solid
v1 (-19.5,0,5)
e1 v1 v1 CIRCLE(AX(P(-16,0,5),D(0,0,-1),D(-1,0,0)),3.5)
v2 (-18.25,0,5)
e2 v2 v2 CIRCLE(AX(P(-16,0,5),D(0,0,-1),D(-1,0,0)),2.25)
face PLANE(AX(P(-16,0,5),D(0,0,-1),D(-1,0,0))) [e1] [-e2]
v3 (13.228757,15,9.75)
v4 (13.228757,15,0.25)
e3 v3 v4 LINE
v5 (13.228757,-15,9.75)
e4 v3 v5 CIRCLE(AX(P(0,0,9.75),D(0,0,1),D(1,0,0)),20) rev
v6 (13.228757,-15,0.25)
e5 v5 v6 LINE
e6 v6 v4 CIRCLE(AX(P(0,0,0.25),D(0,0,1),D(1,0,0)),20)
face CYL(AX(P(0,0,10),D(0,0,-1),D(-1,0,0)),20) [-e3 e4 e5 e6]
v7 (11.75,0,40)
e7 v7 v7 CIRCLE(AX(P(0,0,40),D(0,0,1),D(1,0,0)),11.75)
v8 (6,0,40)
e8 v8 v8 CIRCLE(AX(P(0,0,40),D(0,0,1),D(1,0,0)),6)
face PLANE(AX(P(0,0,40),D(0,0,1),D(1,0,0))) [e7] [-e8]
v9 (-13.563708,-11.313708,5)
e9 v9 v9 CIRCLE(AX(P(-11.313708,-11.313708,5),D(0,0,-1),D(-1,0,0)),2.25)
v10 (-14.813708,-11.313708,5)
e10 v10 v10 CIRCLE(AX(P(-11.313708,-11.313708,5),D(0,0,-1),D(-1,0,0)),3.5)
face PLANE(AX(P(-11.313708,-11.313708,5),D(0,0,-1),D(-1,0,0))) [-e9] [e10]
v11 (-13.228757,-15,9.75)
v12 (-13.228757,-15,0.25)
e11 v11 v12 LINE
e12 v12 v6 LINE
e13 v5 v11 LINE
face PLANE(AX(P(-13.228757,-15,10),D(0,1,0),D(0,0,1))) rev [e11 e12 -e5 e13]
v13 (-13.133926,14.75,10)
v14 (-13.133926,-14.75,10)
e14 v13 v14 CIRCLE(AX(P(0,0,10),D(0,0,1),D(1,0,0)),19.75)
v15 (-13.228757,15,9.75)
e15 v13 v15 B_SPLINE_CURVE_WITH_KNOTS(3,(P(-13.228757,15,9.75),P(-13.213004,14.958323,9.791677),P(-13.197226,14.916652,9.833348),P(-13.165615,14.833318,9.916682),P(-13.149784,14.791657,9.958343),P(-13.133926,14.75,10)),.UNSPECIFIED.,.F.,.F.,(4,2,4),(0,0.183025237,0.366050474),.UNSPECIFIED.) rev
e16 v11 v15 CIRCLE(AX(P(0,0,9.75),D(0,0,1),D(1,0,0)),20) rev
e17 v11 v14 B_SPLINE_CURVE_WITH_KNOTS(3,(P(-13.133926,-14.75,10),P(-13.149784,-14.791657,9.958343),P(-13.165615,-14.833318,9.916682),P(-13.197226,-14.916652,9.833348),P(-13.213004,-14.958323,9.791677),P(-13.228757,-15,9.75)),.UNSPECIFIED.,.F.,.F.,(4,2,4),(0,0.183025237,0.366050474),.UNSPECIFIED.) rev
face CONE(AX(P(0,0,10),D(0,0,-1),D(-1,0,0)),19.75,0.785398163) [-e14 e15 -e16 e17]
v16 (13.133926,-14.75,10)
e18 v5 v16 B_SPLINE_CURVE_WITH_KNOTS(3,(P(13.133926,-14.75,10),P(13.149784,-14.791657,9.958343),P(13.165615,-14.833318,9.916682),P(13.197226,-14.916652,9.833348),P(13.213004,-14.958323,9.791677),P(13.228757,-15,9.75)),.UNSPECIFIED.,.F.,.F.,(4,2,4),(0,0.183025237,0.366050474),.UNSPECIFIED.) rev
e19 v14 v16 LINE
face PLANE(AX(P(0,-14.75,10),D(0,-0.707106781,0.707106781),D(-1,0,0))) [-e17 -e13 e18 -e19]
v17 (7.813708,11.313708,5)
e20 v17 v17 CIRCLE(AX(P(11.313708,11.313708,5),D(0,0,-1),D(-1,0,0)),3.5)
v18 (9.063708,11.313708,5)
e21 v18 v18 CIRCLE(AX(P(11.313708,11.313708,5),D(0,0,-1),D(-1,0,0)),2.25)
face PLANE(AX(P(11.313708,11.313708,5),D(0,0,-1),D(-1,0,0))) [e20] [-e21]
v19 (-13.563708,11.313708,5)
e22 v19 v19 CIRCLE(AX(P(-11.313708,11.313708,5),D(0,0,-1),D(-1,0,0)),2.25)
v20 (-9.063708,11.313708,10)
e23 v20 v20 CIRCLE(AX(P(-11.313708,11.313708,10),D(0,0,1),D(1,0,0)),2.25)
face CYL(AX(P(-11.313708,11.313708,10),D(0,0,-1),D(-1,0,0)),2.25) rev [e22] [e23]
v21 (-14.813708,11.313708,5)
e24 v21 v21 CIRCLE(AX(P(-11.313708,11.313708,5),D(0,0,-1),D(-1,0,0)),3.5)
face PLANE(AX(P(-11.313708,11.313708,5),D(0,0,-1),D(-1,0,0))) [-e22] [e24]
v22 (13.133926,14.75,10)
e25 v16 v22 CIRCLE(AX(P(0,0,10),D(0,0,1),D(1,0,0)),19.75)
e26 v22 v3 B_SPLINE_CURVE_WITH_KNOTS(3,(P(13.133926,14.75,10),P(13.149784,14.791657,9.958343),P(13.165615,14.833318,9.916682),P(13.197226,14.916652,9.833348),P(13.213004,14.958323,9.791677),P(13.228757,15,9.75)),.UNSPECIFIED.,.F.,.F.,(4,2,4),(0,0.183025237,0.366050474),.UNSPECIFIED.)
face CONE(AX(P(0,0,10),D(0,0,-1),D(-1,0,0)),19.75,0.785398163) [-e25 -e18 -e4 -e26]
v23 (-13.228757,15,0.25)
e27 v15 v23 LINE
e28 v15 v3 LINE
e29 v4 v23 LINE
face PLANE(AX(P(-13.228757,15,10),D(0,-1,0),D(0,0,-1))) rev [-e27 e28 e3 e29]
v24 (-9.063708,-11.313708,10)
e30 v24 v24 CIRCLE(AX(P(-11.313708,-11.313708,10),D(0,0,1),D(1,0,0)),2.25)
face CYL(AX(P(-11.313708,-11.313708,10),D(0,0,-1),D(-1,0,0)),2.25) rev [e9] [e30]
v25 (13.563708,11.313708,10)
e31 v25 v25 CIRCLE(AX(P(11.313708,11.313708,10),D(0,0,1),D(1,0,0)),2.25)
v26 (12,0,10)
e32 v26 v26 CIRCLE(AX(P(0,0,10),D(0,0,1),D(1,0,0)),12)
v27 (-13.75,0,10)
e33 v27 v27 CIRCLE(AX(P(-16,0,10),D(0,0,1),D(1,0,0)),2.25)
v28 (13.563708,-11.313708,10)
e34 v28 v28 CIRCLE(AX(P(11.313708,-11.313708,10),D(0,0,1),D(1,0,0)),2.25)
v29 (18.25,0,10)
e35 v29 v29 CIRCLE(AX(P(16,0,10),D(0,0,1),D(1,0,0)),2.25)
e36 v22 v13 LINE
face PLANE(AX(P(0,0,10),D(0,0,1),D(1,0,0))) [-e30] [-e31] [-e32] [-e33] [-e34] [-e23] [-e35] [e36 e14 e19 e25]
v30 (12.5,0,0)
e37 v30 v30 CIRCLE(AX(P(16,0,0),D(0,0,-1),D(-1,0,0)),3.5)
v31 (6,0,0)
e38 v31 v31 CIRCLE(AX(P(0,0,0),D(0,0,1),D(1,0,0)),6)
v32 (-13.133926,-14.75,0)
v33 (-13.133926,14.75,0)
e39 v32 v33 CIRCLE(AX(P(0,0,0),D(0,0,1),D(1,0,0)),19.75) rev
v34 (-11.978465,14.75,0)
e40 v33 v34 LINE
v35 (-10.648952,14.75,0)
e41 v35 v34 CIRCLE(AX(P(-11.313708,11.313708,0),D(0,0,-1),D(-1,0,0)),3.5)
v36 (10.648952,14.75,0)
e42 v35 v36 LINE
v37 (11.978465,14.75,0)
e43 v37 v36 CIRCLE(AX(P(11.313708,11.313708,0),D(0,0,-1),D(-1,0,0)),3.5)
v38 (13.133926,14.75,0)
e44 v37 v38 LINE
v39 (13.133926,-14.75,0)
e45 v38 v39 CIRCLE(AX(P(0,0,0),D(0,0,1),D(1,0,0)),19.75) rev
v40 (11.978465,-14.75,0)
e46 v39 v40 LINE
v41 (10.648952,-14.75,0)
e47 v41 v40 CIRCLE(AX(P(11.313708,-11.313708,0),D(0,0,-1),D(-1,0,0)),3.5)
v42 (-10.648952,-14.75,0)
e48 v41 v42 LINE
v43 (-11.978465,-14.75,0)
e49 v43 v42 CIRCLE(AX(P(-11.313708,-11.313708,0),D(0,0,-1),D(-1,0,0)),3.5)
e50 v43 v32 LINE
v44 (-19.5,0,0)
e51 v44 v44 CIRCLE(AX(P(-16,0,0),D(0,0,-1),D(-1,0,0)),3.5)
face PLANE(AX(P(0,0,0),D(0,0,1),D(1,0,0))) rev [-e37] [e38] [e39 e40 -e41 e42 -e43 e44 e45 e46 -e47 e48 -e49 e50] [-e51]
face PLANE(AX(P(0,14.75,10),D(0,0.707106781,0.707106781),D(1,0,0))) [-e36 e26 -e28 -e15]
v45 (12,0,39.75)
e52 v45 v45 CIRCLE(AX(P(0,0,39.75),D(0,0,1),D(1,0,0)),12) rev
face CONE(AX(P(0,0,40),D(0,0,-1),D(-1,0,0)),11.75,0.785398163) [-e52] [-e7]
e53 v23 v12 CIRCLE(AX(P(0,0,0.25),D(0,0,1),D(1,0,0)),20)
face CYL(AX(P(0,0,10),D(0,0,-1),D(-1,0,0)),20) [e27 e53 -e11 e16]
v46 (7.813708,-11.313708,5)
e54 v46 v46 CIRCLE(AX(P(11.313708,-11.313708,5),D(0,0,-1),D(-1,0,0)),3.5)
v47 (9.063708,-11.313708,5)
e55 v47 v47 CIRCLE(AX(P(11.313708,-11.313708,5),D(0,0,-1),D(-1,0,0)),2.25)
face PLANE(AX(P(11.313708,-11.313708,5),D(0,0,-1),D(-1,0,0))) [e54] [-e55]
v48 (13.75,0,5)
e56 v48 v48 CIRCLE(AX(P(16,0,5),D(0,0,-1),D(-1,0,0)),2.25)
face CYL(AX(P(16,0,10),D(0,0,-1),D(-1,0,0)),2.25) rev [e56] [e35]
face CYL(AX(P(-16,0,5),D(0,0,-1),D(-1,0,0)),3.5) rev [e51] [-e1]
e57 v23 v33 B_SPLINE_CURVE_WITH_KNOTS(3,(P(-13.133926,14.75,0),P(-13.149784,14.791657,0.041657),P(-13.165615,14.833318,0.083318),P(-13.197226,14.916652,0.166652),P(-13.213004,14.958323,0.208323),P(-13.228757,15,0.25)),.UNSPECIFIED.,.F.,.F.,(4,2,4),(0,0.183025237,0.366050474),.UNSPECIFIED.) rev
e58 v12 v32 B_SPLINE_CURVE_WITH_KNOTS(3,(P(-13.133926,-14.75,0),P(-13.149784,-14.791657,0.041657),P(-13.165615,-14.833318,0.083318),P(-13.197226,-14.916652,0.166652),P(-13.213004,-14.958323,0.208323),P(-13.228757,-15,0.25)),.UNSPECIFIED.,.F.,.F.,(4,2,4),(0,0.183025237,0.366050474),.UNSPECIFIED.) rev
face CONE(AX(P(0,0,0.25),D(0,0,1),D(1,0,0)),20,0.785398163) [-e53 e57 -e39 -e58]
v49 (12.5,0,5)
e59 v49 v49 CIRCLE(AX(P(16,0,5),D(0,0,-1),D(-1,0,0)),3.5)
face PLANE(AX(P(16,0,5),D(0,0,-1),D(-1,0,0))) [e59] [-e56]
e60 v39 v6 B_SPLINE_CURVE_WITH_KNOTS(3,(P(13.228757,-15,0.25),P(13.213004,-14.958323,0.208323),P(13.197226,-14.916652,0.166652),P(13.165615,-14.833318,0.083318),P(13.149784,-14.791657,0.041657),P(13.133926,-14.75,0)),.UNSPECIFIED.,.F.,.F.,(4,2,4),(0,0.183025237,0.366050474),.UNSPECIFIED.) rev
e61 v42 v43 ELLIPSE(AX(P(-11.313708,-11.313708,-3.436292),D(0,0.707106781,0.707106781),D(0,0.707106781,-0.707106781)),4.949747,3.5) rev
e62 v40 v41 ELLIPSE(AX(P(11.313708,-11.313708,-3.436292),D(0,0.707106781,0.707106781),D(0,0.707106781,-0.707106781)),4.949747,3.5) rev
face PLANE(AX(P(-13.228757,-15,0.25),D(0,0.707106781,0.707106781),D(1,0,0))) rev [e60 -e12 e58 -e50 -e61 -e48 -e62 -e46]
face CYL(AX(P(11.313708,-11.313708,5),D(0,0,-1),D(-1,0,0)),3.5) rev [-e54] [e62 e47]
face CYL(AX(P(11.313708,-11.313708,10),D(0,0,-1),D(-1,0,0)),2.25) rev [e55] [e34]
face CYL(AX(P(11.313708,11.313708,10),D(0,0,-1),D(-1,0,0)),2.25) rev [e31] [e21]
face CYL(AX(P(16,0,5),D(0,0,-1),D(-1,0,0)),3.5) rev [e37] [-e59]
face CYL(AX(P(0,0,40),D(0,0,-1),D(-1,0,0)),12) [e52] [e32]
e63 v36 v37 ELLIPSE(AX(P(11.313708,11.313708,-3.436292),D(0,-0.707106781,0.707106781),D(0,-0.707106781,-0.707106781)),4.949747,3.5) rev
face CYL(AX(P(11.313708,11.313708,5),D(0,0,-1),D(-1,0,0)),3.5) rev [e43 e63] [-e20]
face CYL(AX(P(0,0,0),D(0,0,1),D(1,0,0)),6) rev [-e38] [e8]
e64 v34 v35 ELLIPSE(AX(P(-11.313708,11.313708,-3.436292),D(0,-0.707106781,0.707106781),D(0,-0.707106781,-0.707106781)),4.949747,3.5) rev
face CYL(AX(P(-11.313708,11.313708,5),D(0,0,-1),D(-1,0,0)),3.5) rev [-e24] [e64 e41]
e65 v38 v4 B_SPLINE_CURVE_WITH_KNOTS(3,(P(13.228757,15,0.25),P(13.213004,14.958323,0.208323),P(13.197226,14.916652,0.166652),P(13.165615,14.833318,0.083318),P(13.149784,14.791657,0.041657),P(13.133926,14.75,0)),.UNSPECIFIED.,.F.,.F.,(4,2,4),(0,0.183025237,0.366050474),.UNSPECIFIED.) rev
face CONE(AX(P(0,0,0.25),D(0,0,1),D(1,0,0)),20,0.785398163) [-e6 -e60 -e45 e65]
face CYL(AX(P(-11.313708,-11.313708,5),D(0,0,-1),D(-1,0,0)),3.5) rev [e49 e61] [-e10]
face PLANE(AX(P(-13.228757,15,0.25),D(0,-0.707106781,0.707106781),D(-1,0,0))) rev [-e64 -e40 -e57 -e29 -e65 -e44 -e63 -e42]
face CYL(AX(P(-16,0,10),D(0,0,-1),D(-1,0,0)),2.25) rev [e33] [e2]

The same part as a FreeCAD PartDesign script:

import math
import FreeCAD as App
import Part
import Sketcher
from FreeCAD import Vector


def edges_at(feature, points):
    """Names of the edges that pass closest to the given points."""
    edges = feature.Shape.Edges
    near = lambda p: min(range(len(edges)), key=lambda i: edges[i].distToShape(Part.Vertex(*p))[0])
    return sorted({f"Edge{near(p) + 1}" for p in points})

doc = App.newDocument("Part")
body = doc.addObject("PartDesign::Body", "Body")

# Sketch on XY plane
sketch1 = body.newObject("Sketcher::SketchObject", "Sketch")
sketch1.AttachmentSupport = (doc.getObject("XY_Plane"), [""])
sketch1.MapMode = "FlatFace"
sketch1.addGeometry(Part.LineSegment(Vector(13.2, 15, 0), Vector(-13.2, 15, 0)), False)
sketch1.addGeometry(Part.ArcOfCircle(Part.Circle(Vector(0, 0, 0), Vector(0, 0, 1), 20), math.radians(131), math.radians(229)), False)
sketch1.addGeometry(Part.LineSegment(Vector(-13.2, -15, 0), Vector(13.2, -15, 0)), False)
sketch1.addGeometry(Part.ArcOfCircle(Part.Circle(Vector(0, 0, 0), Vector(0, 0, 1), 20), math.radians(-49), math.radians(49)), False)
sketch1.addGeometry(Part.Circle(Vector(11.3, -11.3, 0), Vector(0, 0, 1), 2.2), False)
sketch1.addGeometry(Part.Circle(Vector(16, 0, 0), Vector(0, 0, 1), 2.2), False)
sketch1.addGeometry(Part.Circle(Vector(-11.3, -11.3, 0), Vector(0, 0, 1), 2.2), False)
sketch1.addGeometry(Part.Circle(Vector(-16, 0, 0), Vector(0, 0, 1), 2.2), False)
sketch1.addGeometry(Part.Circle(Vector(11.3, 11.3, 0), Vector(0, 0, 1), 2.2), False)
sketch1.addGeometry(Part.Circle(Vector(-11.3, 11.3, 0), Vector(0, 0, 1), 2.2), False)
sketch1.addConstraint(Sketcher.Constraint("Coincident", 0, 2, 1, 1))
sketch1.addConstraint(Sketcher.Constraint("Coincident", 1, 2, 2, 1))
sketch1.addConstraint(Sketcher.Constraint("Coincident", 2, 2, 3, 1))
sketch1.addConstraint(Sketcher.Constraint("Coincident", 3, 2, 0, 1))
sketch1.addConstraint(Sketcher.Constraint("Horizontal", 0))
sketch1.addConstraint(Sketcher.Constraint("Horizontal", 2))
sketch1.addConstraint(Sketcher.Constraint("Coincident", 1, 3, -1, 1))
sketch1.addConstraint(Sketcher.Constraint("Coincident", 3, 3, -1, 1))
sketch1.addConstraint(Sketcher.Constraint("Equal", 1, 3))
sketch1.addConstraint(Sketcher.Constraint("Equal", 4, 5))
sketch1.addConstraint(Sketcher.Constraint("Equal", 5, 6))
sketch1.addConstraint(Sketcher.Constraint("Equal", 6, 7))
sketch1.addConstraint(Sketcher.Constraint("Equal", 7, 8))
sketch1.addConstraint(Sketcher.Constraint("Equal", 8, 9))
sketch1.addConstraint(Sketcher.Constraint("Symmetric", 5, 3, 7, 3, -1, 1))
sketch1.addConstraint(Sketcher.Constraint("Symmetric", 6, 3, 8, 3, -1, 1))
sketch1.addConstraint(Sketcher.Constraint("Symmetric", 4, 3, 9, 3, -1, 1))
sketch1.addConstraint(Sketcher.Constraint("Symmetric", 4, 3, 6, 3, -2))
sketch1.addConstraint(Sketcher.Constraint("PointOnObject", 5, 3, -1))
sketch1.addConstraint(Sketcher.Constraint("Vertical", 0, 2, 1, 2))
sketch1.addConstraint(Sketcher.Constraint("Radius", 1, 20.0))
sketch1.addConstraint(Sketcher.Constraint("Diameter", 4, 4.5))
sketch1.addConstraint(Sketcher.Constraint("DistanceX", -1, 1, 5, 3, 16.0))
sketch1.addConstraint(Sketcher.Constraint("DistanceY", -1, 1, 0, 2, 15.0))
sketch1.addConstraint(Sketcher.Constraint("DistanceX", -1, 1, 4, 3, 11.313708))
sketch1.addConstraint(Sketcher.Constraint("DistanceY", 4, 3, -1, 1, 11.313708))
pad1 = body.newObject("PartDesign::Pad", "Pad")
pad1.Profile = sketch1
pad1.Length = 10

# Sketch on XY plane
sketch2 = body.newObject("Sketcher::SketchObject", "Sketch001")
sketch2.AttachmentSupport = (doc.getObject("XY_Plane"), [""])
sketch2.MapMode = "FlatFace"
sketch2.AttachmentOffset = App.Placement(Vector(0, 0, 10), App.Rotation())
sketch2.addGeometry(Part.Circle(Vector(0, 0, 0), Vector(0, 0, 1), 12), False)
sketch2.addConstraint(Sketcher.Constraint("Coincident", 0, 3, -1, 1))
sketch2.addConstraint(Sketcher.Constraint("Diameter", 0, 24.0))
pad2 = body.newObject("PartDesign::Pad", "Pad001")
pad2.Profile = sketch2
pad2.Length = 30

# Sketch on XY plane
sketch3 = body.newObject("Sketcher::SketchObject", "Sketch002")
sketch3.AttachmentSupport = (doc.getObject("XY_Plane"), [""])
sketch3.MapMode = "FlatFace"
sketch3.AttachmentOffset = App.Placement(Vector(0, 0, 40), App.Rotation())
sketch3.addGeometry(Part.Circle(Vector(0, 0, 0), Vector(0, 0, 1), 6), False)
sketch3.addConstraint(Sketcher.Constraint("Coincident", 0, 3, -1, 1))
sketch3.addConstraint(Sketcher.Constraint("Diameter", 0, 12.0))
pocket1 = body.newObject("PartDesign::Pocket", "Pocket")
pocket1.Profile = sketch3
pocket1.Type = "ThroughAll"
doc.recompute()

chamfer = body.newObject("PartDesign::Chamfer", "Chamfer")
chamfer.Base = (pocket1, edges_at(pocket1, [
    (20, 0, 10),
    (0, 15, 10),
    (-12, 0, 40),
    (-20, 0, 10),
    (0, 15, 0),
    (20, 0, 0),
    (0, -15, 0),
    (-20, 0, 0),
    (0, -15, 10),
]))
chamfer.Size = 0.25

# Sketch on XY plane
sketch4 = body.newObject("Sketcher::SketchObject", "Sketch003")
sketch4.AttachmentSupport = (doc.getObject("XY_Plane"), [""])
sketch4.MapMode = "FlatFace"
sketch4.addGeometry(Part.Circle(Vector(11.3, 11.3, 0), Vector(0, 0, 1), 3.5), False)
sketch4.addGeometry(Part.Circle(Vector(-11.3, 11.3, 0), Vector(0, 0, 1), 3.5), False)
sketch4.addGeometry(Part.Circle(Vector(-16, 0, 0), Vector(0, 0, 1), 3.5), False)
sketch4.addGeometry(Part.Circle(Vector(-11.3, -11.3, 0), Vector(0, 0, 1), 3.5), False)
sketch4.addGeometry(Part.Circle(Vector(11.3, -11.3, 0), Vector(0, 0, 1), 3.5), False)
sketch4.addGeometry(Part.Circle(Vector(16, 0, 0), Vector(0, 0, 1), 3.5), False)
sketch4.addConstraint(Sketcher.Constraint("Equal", 0, 1))
sketch4.addConstraint(Sketcher.Constraint("Equal", 1, 2))
sketch4.addConstraint(Sketcher.Constraint("Equal", 2, 3))
sketch4.addConstraint(Sketcher.Constraint("Equal", 3, 4))
sketch4.addConstraint(Sketcher.Constraint("Equal", 4, 5))
sketch4.addConstraint(Sketcher.Constraint("Symmetric", 0, 3, 3, 3, -1, 1))
sketch4.addConstraint(Sketcher.Constraint("Symmetric", 1, 3, 4, 3, -1, 1))
sketch4.addConstraint(Sketcher.Constraint("Symmetric", 2, 3, 5, 3, -1, 1))
sketch4.addConstraint(Sketcher.Constraint("Symmetric", 0, 3, 1, 3, -2))
sketch4.addConstraint(Sketcher.Constraint("PointOnObject", 2, 3, -1))
sketch4.addConstraint(Sketcher.Constraint("Diameter", 0, 7.0))
sketch4.addConstraint(Sketcher.Constraint("DistanceX", 2, 3, -1, 1, 16.0))
sketch4.addConstraint(Sketcher.Constraint("DistanceX", -1, 1, 0, 3, 11.313708))
sketch4.addConstraint(Sketcher.Constraint("DistanceY", -1, 1, 0, 3, 11.313708))
pocket2 = body.newObject("PartDesign::Pocket", "Pocket001")
pocket2.Profile = sketch4
pocket2.Length = 5
pocket2.Reversed = True

doc.recompute()
